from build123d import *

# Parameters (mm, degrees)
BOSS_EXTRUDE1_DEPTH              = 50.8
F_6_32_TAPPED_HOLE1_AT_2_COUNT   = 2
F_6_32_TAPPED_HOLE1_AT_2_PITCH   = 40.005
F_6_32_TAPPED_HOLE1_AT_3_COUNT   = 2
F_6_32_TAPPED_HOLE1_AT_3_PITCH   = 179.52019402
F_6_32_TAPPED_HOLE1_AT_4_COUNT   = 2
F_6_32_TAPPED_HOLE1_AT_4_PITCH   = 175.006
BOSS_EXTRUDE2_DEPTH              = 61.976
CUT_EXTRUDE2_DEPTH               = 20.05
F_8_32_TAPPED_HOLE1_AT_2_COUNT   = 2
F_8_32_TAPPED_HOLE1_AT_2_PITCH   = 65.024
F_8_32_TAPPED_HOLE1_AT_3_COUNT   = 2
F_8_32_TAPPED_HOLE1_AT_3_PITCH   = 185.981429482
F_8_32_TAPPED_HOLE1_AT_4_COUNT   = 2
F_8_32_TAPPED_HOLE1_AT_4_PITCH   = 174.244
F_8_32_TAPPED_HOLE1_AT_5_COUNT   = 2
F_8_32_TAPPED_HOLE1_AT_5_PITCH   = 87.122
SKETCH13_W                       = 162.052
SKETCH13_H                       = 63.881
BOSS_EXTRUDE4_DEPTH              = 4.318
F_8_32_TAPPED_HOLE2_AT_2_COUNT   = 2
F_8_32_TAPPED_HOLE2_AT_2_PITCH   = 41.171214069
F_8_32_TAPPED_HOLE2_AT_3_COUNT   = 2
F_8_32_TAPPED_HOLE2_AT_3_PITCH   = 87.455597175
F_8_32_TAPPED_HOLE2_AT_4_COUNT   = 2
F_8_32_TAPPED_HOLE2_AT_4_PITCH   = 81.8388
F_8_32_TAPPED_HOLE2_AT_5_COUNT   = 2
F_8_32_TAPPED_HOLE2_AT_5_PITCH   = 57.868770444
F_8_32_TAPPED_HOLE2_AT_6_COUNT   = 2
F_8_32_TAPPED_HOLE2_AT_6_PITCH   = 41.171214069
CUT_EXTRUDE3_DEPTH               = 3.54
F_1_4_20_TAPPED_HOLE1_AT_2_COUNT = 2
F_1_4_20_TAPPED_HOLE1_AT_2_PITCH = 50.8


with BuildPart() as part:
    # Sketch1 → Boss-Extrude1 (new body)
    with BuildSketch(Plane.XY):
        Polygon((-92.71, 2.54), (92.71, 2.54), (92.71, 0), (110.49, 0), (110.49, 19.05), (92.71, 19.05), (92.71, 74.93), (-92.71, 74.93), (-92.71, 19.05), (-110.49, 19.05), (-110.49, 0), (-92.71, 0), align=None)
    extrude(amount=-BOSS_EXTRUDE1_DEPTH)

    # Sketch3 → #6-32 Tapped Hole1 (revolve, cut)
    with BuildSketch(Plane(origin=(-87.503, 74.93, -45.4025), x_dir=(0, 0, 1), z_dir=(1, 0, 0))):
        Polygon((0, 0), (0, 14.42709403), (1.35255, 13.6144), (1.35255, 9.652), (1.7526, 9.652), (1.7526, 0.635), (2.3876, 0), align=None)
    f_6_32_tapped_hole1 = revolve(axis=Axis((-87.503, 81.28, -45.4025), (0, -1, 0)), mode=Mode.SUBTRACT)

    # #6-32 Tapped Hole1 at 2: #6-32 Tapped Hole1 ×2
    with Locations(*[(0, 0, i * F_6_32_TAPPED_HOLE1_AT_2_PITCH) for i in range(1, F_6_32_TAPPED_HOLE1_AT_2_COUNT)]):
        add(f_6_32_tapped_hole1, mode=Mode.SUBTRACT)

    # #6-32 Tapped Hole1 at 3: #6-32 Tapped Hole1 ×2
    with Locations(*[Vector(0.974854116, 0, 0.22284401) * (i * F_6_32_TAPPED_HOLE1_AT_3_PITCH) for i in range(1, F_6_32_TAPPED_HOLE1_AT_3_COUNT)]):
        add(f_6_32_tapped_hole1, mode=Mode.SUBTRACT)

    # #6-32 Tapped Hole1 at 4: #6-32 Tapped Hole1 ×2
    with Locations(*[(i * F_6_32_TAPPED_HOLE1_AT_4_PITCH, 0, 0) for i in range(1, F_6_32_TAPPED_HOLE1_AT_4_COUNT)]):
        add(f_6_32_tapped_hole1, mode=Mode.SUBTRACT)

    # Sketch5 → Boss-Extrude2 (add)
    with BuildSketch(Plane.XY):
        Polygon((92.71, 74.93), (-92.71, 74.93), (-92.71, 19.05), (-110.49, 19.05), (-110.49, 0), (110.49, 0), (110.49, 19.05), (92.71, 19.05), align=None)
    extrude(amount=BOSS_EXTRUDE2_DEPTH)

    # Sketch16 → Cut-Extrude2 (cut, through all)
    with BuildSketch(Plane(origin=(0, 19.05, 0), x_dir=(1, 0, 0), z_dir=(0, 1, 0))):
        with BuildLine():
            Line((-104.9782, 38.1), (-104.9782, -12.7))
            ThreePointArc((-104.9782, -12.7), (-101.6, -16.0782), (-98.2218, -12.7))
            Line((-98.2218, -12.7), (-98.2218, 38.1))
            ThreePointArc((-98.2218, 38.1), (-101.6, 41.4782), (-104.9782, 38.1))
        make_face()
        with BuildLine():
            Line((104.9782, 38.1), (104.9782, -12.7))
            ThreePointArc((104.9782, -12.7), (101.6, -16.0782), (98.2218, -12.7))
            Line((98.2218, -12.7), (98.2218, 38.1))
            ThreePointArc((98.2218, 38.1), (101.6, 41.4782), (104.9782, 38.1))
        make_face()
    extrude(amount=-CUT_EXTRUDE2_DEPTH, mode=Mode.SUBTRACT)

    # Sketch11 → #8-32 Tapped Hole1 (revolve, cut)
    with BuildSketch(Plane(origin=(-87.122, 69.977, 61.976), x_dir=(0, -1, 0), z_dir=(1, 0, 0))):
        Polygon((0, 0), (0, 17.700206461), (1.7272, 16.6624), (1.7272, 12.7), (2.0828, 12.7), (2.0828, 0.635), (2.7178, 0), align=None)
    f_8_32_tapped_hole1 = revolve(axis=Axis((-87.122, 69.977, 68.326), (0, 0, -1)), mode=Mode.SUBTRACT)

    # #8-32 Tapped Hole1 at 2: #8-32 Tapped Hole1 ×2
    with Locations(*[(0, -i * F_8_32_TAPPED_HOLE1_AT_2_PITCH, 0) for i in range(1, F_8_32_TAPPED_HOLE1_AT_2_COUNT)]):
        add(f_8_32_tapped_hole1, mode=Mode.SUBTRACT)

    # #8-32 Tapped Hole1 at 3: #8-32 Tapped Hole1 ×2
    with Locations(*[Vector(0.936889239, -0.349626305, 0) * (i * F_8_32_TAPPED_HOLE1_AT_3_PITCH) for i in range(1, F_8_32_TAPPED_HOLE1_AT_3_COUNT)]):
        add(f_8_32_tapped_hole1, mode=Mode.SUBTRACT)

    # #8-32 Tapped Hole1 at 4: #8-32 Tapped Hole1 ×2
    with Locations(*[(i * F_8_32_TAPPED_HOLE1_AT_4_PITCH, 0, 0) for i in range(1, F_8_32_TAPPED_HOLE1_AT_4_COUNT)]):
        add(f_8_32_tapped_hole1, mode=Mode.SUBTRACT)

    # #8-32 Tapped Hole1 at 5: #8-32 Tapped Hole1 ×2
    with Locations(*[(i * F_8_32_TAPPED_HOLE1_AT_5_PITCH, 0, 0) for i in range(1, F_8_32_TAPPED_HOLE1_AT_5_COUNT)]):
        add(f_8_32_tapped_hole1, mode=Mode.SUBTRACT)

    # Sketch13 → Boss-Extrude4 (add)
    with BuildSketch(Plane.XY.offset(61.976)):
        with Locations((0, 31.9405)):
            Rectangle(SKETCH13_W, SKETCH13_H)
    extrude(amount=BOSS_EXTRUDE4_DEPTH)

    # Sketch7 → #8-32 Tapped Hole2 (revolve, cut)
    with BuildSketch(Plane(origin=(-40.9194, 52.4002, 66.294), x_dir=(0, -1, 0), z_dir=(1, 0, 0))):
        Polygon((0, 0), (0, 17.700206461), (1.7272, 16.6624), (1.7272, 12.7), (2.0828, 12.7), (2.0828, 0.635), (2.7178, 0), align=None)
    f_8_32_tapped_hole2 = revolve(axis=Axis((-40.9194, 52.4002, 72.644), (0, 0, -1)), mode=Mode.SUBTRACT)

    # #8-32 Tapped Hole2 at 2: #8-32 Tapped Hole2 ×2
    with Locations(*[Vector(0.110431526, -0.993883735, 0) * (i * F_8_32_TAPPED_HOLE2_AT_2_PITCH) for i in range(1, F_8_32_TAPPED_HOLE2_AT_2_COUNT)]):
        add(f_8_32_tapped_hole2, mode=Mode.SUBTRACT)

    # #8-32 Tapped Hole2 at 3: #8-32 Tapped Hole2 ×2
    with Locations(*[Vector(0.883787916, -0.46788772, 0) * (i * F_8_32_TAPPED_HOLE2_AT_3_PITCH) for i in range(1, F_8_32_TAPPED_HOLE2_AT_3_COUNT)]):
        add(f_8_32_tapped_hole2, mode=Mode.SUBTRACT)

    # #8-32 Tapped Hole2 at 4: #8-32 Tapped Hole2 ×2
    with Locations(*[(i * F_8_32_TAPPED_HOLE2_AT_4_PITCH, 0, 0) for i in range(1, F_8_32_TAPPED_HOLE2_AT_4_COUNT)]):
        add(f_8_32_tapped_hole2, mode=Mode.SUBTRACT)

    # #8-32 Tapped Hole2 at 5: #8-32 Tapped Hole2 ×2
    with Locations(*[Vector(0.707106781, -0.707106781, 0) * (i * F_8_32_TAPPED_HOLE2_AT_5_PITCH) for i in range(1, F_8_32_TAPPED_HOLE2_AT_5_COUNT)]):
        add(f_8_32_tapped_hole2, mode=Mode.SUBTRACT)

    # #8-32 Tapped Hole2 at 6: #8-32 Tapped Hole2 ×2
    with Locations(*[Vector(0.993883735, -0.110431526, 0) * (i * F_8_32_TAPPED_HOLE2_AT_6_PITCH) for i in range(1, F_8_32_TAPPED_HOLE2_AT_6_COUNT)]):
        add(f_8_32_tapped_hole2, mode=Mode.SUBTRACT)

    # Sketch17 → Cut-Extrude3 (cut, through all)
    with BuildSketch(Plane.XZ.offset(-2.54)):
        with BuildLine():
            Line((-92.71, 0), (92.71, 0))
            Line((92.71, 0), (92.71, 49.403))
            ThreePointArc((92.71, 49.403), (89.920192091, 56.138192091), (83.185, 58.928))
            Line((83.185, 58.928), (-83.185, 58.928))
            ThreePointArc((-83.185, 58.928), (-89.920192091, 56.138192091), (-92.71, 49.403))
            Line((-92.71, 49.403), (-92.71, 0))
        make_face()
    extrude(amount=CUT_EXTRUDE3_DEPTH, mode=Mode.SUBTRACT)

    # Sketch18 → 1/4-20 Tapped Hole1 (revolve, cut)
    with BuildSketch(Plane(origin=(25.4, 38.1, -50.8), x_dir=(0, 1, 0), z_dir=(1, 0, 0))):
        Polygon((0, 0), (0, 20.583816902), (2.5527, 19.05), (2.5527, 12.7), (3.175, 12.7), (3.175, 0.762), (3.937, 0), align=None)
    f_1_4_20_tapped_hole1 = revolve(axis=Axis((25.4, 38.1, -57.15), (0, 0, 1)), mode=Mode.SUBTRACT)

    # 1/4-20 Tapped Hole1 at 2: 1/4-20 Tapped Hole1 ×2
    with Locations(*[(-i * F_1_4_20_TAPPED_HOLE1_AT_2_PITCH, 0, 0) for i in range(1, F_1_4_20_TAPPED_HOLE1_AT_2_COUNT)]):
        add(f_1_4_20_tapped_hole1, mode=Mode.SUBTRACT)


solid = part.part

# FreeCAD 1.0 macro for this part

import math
import FreeCAD as App
import Part
import Sketcher

V = App.Vector
Q = App.Units.Quantity

doc = App.newDocument("Part")
body = doc.addObject("PartDesign::Body", "Body")

# Sketch on XY plane
sketch1 = body.newObject("Sketcher::SketchObject", "Sketch")
sketch1.AttachmentSupport = (doc.getObject("XY_Plane"), [""])
sketch1.MapMode = "FlatFace"
sketch1.addGeometry(Part.LineSegment(V(-92.71, 2.54, 0), V(92.71, 2.54, 0)), False)
sketch1.addGeometry(Part.LineSegment(V(92.71, 2.54, 0), V(92.71, 0, 0)), False)
sketch1.addGeometry(Part.LineSegment(V(92.71, 0, 0), V(110.49, 0, 0)), False)
sketch1.addGeometry(Part.LineSegment(V(110.49, 0, 0), V(110.49, 19.05, 0)), False)
sketch1.addGeometry(Part.LineSegment(V(110.49, 19.05, 0), V(92.71, 19.05, 0)), False)
sketch1.addGeometry(Part.LineSegment(V(92.71, 19.05, 0), V(92.71, 74.93, 0)), False)
sketch1.addGeometry(Part.LineSegment(V(92.71, 74.93, 0), V(-92.71, 74.93, 0)), False)
sketch1.addGeometry(Part.LineSegment(V(-92.71, 74.93, 0), V(-92.71, 19.05, 0)), False)
sketch1.addGeometry(Part.LineSegment(V(-92.71, 19.05, 0), V(-110.49, 19.05, 0)), False)
sketch1.addGeometry(Part.LineSegment(V(-110.49, 19.05, 0), V(-110.49, 0, 0)), False)
sketch1.addGeometry(Part.LineSegment(V(-110.49, 0, 0), V(-92.71, 0, 0)), False)
sketch1.addGeometry(Part.LineSegment(V(-92.71, 0, 0), V(-92.71, 2.54, 0)), False)
sketch1.addConstraint(Sketcher.Constraint("Coincident", 0, 2, 1, 1))
sketch1.addConstraint(Sketcher.Constraint("Coincident", 1, 2, 2, 1))
sketch1.addConstraint(Sketcher.Constraint("Coincident", 2, 2, 3, 1))
sketch1.addConstraint(Sketcher.Constraint("Coincident", 3, 2, 4, 1))
sketch1.addConstraint(Sketcher.Constraint("Coincident", 4, 2, 5, 1))
sketch1.addConstraint(Sketcher.Constraint("Coincident", 5, 2, 6, 1))
sketch1.addConstraint(Sketcher.Constraint("Coincident", 6, 2, 7, 1))
sketch1.addConstraint(Sketcher.Constraint("Coincident", 7, 2, 8, 1))
sketch1.addConstraint(Sketcher.Constraint("Coincident", 8, 2, 9, 1))
sketch1.addConstraint(Sketcher.Constraint("Coincident", 9, 2, 10, 1))
sketch1.addConstraint(Sketcher.Constraint("Coincident", 10, 2, 11, 1))
sketch1.addConstraint(Sketcher.Constraint("Coincident", 11, 2, 0, 1))
sketch1.addConstraint(Sketcher.Constraint("Horizontal", 0))
sketch1.addConstraint(Sketcher.Constraint("Vertical", 1))
sketch1.addConstraint(Sketcher.Constraint("Horizontal", 2))
sketch1.addConstraint(Sketcher.Constraint("Vertical", 3))
sketch1.addConstraint(Sketcher.Constraint("Horizontal", 4))
sketch1.addConstraint(Sketcher.Constraint("Vertical", 5))
sketch1.addConstraint(Sketcher.Constraint("Horizontal", 6))
sketch1.addConstraint(Sketcher.Constraint("Vertical", 7))
sketch1.addConstraint(Sketcher.Constraint("Horizontal", 8))
sketch1.addConstraint(Sketcher.Constraint("Vertical", 9))
sketch1.addConstraint(Sketcher.Constraint("Horizontal", 10))
sketch1.addConstraint(Sketcher.Constraint("Vertical", 11))
sketch1.addConstraint(Sketcher.Constraint("Symmetric", 2, 2, 9, 2, -1, 1))
sketch1.addConstraint(Sketcher.Constraint("Symmetric", 4, 2, 7, 2, -2))
sketch1.addConstraint(Sketcher.Constraint("Symmetric", 1, 2, 10, 2, -2))
sketch1.addConstraint(Sketcher.Constraint("Vertical", 1, 2, 4, 2))
sketch1.addConstraint(Sketcher.Constraint("DistanceX", 0, 1, 0, 2, Q("7.3 in")))
sketch1.addConstraint(Sketcher.Constraint("DistanceX", 2, 1, 2, 2, Q("0.7 in")))
sketch1.addConstraint(Sketcher.Constraint("DistanceY", 1, 2, 1, 1, Q("0.1 in")))
sketch1.addConstraint(Sketcher.Constraint("DistanceY", 5, 1, 5, 2, Q("2.2 in")))
sketch1.addConstraint(Sketcher.Constraint("DistanceY", 3, 1, 3, 2, Q("0.75 in")))
pad1 = body.newObject("PartDesign::Pad", "Pad")
pad1.Profile = sketch1
pad1.Length = Q("2 in")
pad1.Reversed = True

# Sketch on YZ plane
sketch2 = body.newObject("Sketcher::SketchObject", "Sketch001")
sketch2.AttachmentSupport = (doc.getObject("YZ_Plane"), [""])
sketch2.MapMode = "FlatFace"
sketch2.AttachmentOffset = App.Placement(V(0, 0, -3.445 * 25.4), App.Rotation())
sketch2.addGeometry(Part.LineSegment(V(60.502906, -45.4025, 0), V(74.93, -45.4025, 0)), False)
sketch2.addGeometry(Part.LineSegment(V(74.93, -45.4025, 0), V(74.93, -43.0149, 0)), False)
sketch2.addGeometry(Part.LineSegment(V(74.93, -43.0149, 0), V(74.295, -43.6499, 0)), False)
sketch2.addGeometry(Part.LineSegment(V(74.295, -43.6499, 0), V(65.278, -43.6499, 0)), False)
sketch2.addGeometry(Part.LineSegment(V(65.278, -43.6499, 0), V(65.278, -44.04995, 0)), False)
sketch2.addGeometry(Part.LineSegment(V(65.278, -44.04995, 0), V(61.3156, -44.04995, 0)), False)
sketch2.addGeometry(Part.LineSegment(V(61.3156, -44.04995, 0), V(60.502906, -45.4025, 0)), False)
sketch2.addGeometry(Part.LineSegment(V(74.93, -45.4025, 0), V(60.502906, -45.4025, 0)), True)  # axis
sketch2.addConstraint(Sketcher.Constraint("Coincident", 0, 2, 1, 1))
sketch2.addConstraint(Sketcher.Constraint("Coincident", 1, 2, 2, 1))
sketch2.addConstraint(Sketcher.Constraint("Coincident", 2, 2, 3, 1))
sketch2.addConstraint(Sketcher.Constraint("Coincident", 3, 2, 4, 1))
sketch2.addConstraint(Sketcher.Constraint("Coincident", 4, 2, 5, 1))
sketch2.addConstraint(Sketcher.Constraint("Coincident", 5, 2, 6, 1))
sketch2.addConstraint(Sketcher.Constraint("Coincident", 6, 2, 0, 1))
sketch2.addConstraint(Sketcher.Constraint("Horizontal", 0))
sketch2.addConstraint(Sketcher.Constraint("Vertical", 1))
sketch2.addConstraint(Sketcher.Constraint("Horizontal", 3))
sketch2.addConstraint(Sketcher.Constraint("Vertical", 4))
sketch2.addConstraint(Sketcher.Constraint("Horizontal", 5))
sketch2.addConstraint(Sketcher.Constraint("Horizontal", 7))
sketch2.addConstraint(Sketcher.Constraint("Coincident", 7, 1, 0, 2))
sketch2.addConstraint(Sketcher.Constraint("Equal", 0, 7))
sketch2.addConstraint(Sketcher.Constraint("Angle", 2, Q("-135 deg")))
sketch2.addConstraint(Sketcher.Constraint("Angle", 6, Q("-121 deg")))
sketch2.addConstraint(Sketcher.Constraint("DistanceX", 3, 2, 3, 1, Q("0.355 in")))
sketch2.addConstraint(Sketcher.Constraint("DistanceX", 5, 2, 5, 1, Q("0.156 in")))
sketch2.addConstraint(Sketcher.Constraint("DistanceY", 1, 1, 1, 2, Q("0.094 in")))
sketch2.addConstraint(Sketcher.Constraint("DistanceX", -1, 1, 0, 2, Q("2.95 in")))
sketch2.addConstraint(Sketcher.Constraint("DistanceX", -1, 1, 3, 2, Q("2.57 in")))
sketch2.addConstraint(Sketcher.Constraint("DistanceY", 0, 2, -1, 1, Q("1.7875 in")))
sketch2.addConstraint(Sketcher.Constraint("DistanceY", 4, 2, 4, 1, Q("0.40005 mm")))
groove = body.newObject("PartDesign::Groove", "Groove")
groove.Profile = sketch2
groove.ReferenceAxis = (sketch2, ["Axis0"])
groove.Angle = 360
doc.recompute()

linearpattern = body.newObject("PartDesign::LinearPattern", "LinearPattern")
linearpattern.Originals = [groove]
linearpattern.Direction = (doc.getObject("Z_Axis"), [""])
linearpattern.Mode = "offset"
linearpattern.Offset = Q("1.575 in")
linearpattern.Occurrences = 2
body.Tip = linearpattern
doc.recompute()

datumline = body.newObject("PartDesign::Line", "DatumLine")
datumline.Placement = App.Placement(V(0, 0, 0), App.Rotation(V(0, 0, 1), V(0.974854116, 0, 0.22284401)))
linearpattern2 = body.newObject("PartDesign::LinearPattern", "LinearPattern001")
linearpattern2.Originals = [groove]
linearpattern2.Direction = (datumline, [""])
linearpattern2.Mode = "offset"
linearpattern2.Offset = 179.520194
linearpattern2.Occurrences = 2
body.Tip = linearpattern2
doc.recompute()

linearpattern3 = body.newObject("PartDesign::LinearPattern", "LinearPattern002")
linearpattern3.Originals = [groove]
linearpattern3.Direction = (doc.getObject("X_Axis"), [""])
linearpattern3.Mode = "offset"
linearpattern3.Offset = Q("6.89 in")
linearpattern3.Occurrences = 2
body.Tip = linearpattern3

# Sketch on XY plane
sketch3 = body.newObject("Sketcher::SketchObject", "Sketch002")
sketch3.AttachmentSupport = (doc.getObject("XY_Plane"), [""])
sketch3.MapMode = "FlatFace"
sketch3.addGeometry(Part.LineSegment(V(92.71, 74.93, 0), V(-92.71, 74.93, 0)), False)
sketch3.addGeometry(Part.LineSegment(V(-92.71, 74.93, 0), V(-92.71, 19.05, 0)), False)
sketch3.addGeometry(Part.LineSegment(V(-92.71, 19.05, 0), V(-110.49, 19.05, 0)), False)
sketch3.addGeometry(Part.LineSegment(V(-110.49, 19.05, 0), V(-110.49, 0, 0)), False)
sketch3.addGeometry(Part.LineSegment(V(-110.49, 0, 0), V(110.49, 0, 0)), False)
sketch3.addGeometry(Part.LineSegment(V(110.49, 0, 0), V(110.49, 19.05, 0)), False)
sketch3.addGeometry(Part.LineSegment(V(110.49, 19.05, 0), V(92.71, 19.05, 0)), False)
sketch3.addGeometry(Part.LineSegment(V(92.71, 19.05, 0), V(92.71, 74.93, 0)), False)
sketch3.addConstraint(Sketcher.Constraint("Coincident", 0, 2, 1, 1))
sketch3.addConstraint(Sketcher.Constraint("Coincident", 1, 2, 2, 1))
sketch3.addConstraint(Sketcher.Constraint("Coincident", 2, 2, 3, 1))
sketch3.addConstraint(Sketcher.Constraint("Coincident", 3, 2, 4, 1))
sketch3.addConstraint(Sketcher.Constraint("Coincident", 4, 2, 5, 1))
sketch3.addConstraint(Sketcher.Constraint("Coincident", 5, 2, 6, 1))
sketch3.addConstraint(Sketcher.Constraint("Coincident", 6, 2, 7, 1))
sketch3.addConstraint(Sketcher.Constraint("Coincident", 7, 2, 0, 1))
sketch3.addConstraint(Sketcher.Constraint("Horizontal", 0))
sketch3.addConstraint(Sketcher.Constraint("Vertical", 1))
sketch3.addConstraint(Sketcher.Constraint("Horizontal", 2))
sketch3.addConstraint(Sketcher.Constraint("Vertical", 3))
sketch3.addConstraint(Sketcher.Constraint("Horizontal", 4))
sketch3.addConstraint(Sketcher.Constraint("Vertical", 5))
sketch3.addConstraint(Sketcher.Constraint("Horizontal", 6))
sketch3.addConstraint(Sketcher.Constraint("Vertical", 7))
sketch3.addConstraint(Sketcher.Constraint("Symmetric", 3, 2, 4, 2, -1, 1))
sketch3.addConstraint(Sketcher.Constraint("Symmetric", 1, 2, 6, 2, -2))
sketch3.addConstraint(Sketcher.Constraint("DistanceX", 0, 2, 0, 1, Q("7.3 in")))
sketch3.addConstraint(Sketcher.Constraint("DistanceX", 2, 2, 2, 1, Q("0.7 in")))
sketch3.addConstraint(Sketcher.Constraint("DistanceY", 1, 2, 1, 1, Q("2.2 in")))
sketch3.addConstraint(Sketcher.Constraint("DistanceY", 3, 2, 3, 1, Q("0.75 in")))
pad2 = body.newObject("PartDesign::Pad", "Pad001")
pad2.Profile = sketch3
pad2.Length = Q("2.44 in")

# Sketch on XZ plane
sketch4 = body.newObject("Sketcher::SketchObject", "Sketch003")
sketch4.AttachmentSupport = (doc.getObject("XZ_Plane"), [""])
sketch4.MapMode = "FlatFace"
sketch4.AttachmentOffset = App.Placement(V(0, 0, -0.75 * 25.4), App.Rotation())
sketch4.addGeometry(Part.LineSegment(V(-104.9782, -38.1, 0), V(-104.9782, 12.7, 0)), False)
sketch4.addGeometry(Part.ArcOfCircle(Part.Circle(V(-101.6, 12.7, 0), V(0, 0, 1), 3.3782), math.radians(0), math.radians(180)), False)
sketch4.addGeometry(Part.LineSegment(V(-98.2218, 12.7, 0), V(-98.2218, -38.1, 0)), False)
sketch4.addGeometry(Part.ArcOfCircle(Part.Circle(V(-101.6, -38.1, 0), V(0, 0, 1), 3.3782), math.radians(180), math.radians(360)), False)
sketch4.addGeometry(Part.LineSegment(V(104.9782, 12.7, 0), V(104.9782, -38.1, 0)), False)
sketch4.addGeometry(Part.ArcOfCircle(Part.Circle(V(101.6, -38.1, 0), V(0, 0, 1), 3.3782), math.radians(180), math.radians(360)), False)
sketch4.addGeometry(Part.LineSegment(V(98.2218, -38.1, 0), V(98.2218, 12.7, 0)), False)
sketch4.addGeometry(Part.ArcOfCircle(Part.Circle(V(101.6, 12.7, 0), V(0, 0, 1), 3.3782), math.radians(0), math.radians(180)), False)
sketch4.addConstraint(Sketcher.Constraint("Tangent", 0, 2, 1, 2))
sketch4.addConstraint(Sketcher.Constraint("Tangent", 1, 1, 2, 1))
sketch4.addConstraint(Sketcher.Constraint("Tangent", 2, 2, 3, 2))
sketch4.addConstraint(Sketcher.Constraint("Tangent", 3, 1, 0, 1))
sketch4.addConstraint(Sketcher.Constraint("Tangent", 4, 2, 5, 2))
sketch4.addConstraint(Sketcher.Constraint("Tangent", 5, 1, 6, 1))
sketch4.addConstraint(Sketcher.Constraint("Tangent", 6, 2, 7, 2))
sketch4.addConstraint(Sketcher.Constraint("Tangent", 7, 1, 4, 1))
sketch4.addConstraint(Sketcher.Constraint("Vertical", 0))
sketch4.addConstraint(Sketcher.Constraint("Vertical", 2))
sketch4.addConstraint(Sketcher.Constraint("Vertical", 4))
sketch4.addConstraint(Sketcher.Constraint("Vertical", 6))
sketch4.addConstraint(Sketcher.Constraint("Equal", 3, 5))
sketch4.addConstraint(Sketcher.Constraint("Symmetric", 3, 3, 5, 3, -2))
sketch4.addConstraint(Sketcher.Constraint("Horizontal", 1, 3, 7, 3))
sketch4.addConstraint(Sketcher.Constraint("DistanceY", 0, 1, 0, 2, Q("2 in")))
sketch4.addConstraint(Sketcher.Constraint("DistanceX", 1, 3, -1, 1, Q("4 in")))
sketch4.addConstraint(Sketcher.Constraint("Radius", 1, Q("0.133 in")))
sketch4.addConstraint(Sketcher.Constraint("DistanceY", -1, 1, 1, 3, Q("0.5 in")))
pocket1 = body.newObject("PartDesign::Pocket", "Pocket")
pocket1.Profile = sketch4
pocket1.Type = "ThroughAll"
pocket1.Reversed = True

# Sketch on YZ plane
sketch5 = body.newObject("Sketcher::SketchObject", "Sketch004")
sketch5.AttachmentSupport = (doc.getObject("YZ_Plane"), [""])
sketch5.MapMode = "FlatFace"
sketch5.AttachmentOffset = App.Placement(V(0, 0, -3.43 * 25.4), App.Rotation())
sketch5.addGeometry(Part.LineSegment(V(69.977, 44.275794, 0), V(69.977, 61.976, 0)), False)
sketch5.addGeometry(Part.LineSegment(V(69.977, 61.976, 0), V(67.2592, 61.976, 0)), False)
sketch5.addGeometry(Part.LineSegment(V(67.2592, 61.976, 0), V(67.8942, 61.341, 0)), False)
sketch5.addGeometry(Part.LineSegment(V(67.8942, 61.341, 0), V(67.8942, 49.276, 0)), False)
sketch5.addGeometry(Part.LineSegment(V(67.8942, 49.276, 0), V(68.2498, 49.276, 0)), False)
sketch5.addGeometry(Part.LineSegment(V(68.2498, 49.276, 0), V(68.2498, 45.3136, 0)), False)
sketch5.addGeometry(Part.LineSegment(V(68.2498, 45.3136, 0), V(69.977, 44.275794, 0)), False)
sketch5.addGeometry(Part.LineSegment(V(69.977, 61.976, 0), V(69.977, 44.275794, 0)), True)  # axis
sketch5.addConstraint(Sketcher.Constraint("Coincident", 0, 2, 1, 1))
sketch5.addConstraint(Sketcher.Constraint("Coincident", 1, 2, 2, 1))
sketch5.addConstraint(Sketcher.Constraint("Coincident", 2, 2, 3, 1))
sketch5.addConstraint(Sketcher.Constraint("Coincident", 3, 2, 4, 1))
sketch5.addConstraint(Sketcher.Constraint("Coincident", 4, 2, 5, 1))
sketch5.addConstraint(Sketcher.Constraint("Coincident", 5, 2, 6, 1))
sketch5.addConstraint(Sketcher.Constraint("Coincident", 6, 2, 0, 1))
sketch5.addConstraint(Sketcher.Constraint("Vertical", 0))
sketch5.addConstraint(Sketcher.Constraint("Horizontal", 1))
sketch5.addConstraint(Sketcher.Constraint("Vertical", 3))
sketch5.addConstraint(Sketcher.Constraint("Horizontal", 4))
sketch5.addConstraint(Sketcher.Constraint("Vertical", 5))
sketch5.addConstraint(Sketcher.Constraint("Vertical", 7))
sketch5.addConstraint(Sketcher.Constraint("Coincident", 7, 1, 0, 2))
sketch5.addConstraint(Sketcher.Constraint("Equal", 0, 7))
sketch5.addConstraint(Sketcher.Constraint("Angle", 2, Q("-45 deg")))
sketch5.addConstraint(Sketcher.Constraint("Angle", 6, Q("-31 deg")))
sketch5.addConstraint(Sketcher.Constraint("DistanceY", 3, 2, 1, 2, Q("0.5 in")))
sketch5.addConstraint(Sketcher.Constraint("DistanceX", 1, 2, 1, 1, Q("0.107 in")))
sketch5.addConstraint(Sketcher.Constraint("DistanceX", 4, 1, 4, 2, Q("0.014 in")))
sketch5.addConstraint(Sketcher.Constraint("DistanceY", 3, 2, 3, 1, Q("0.475 in")))
sketch5.addConstraint(Sketcher.Constraint("DistanceY", 5, 2, 5, 1, Q("0.156 in")))
sketch5.addConstraint(Sketcher.Constraint("DistanceY", -1, 1, 0, 2, Q("2.44 in")))
sketch5.addConstraint(Sketcher.Constraint("DistanceX", -1, 1, 0, 2, Q("2.755 in")))
groove2 = body.newObject("PartDesign::Groove", "Groove001")
groove2.Profile = sketch5
groove2.ReferenceAxis = (sketch5, ["Axis0"])
groove2.Angle = 360
doc.recompute()

linearpattern4 = body.newObject("PartDesign::LinearPattern", "LinearPattern003")
linearpattern4.Originals = [groove2]
linearpattern4.Direction = (doc.getObject("Y_Axis"), [""])
linearpattern4.Mode = "offset"
linearpattern4.Offset = Q("2.56 in")
linearpattern4.Occurrences = 2
linearpattern4.Reversed = True
body.Tip = linearpattern4
doc.recompute()

datumline2 = body.newObject("PartDesign::Line", "DatumLine001")
datumline2.Placement = App.Placement(V(0, 0, 0), App.Rotation(V(0, 0, 1), V(0.936889239, -0.349626305, 0)))
linearpattern5 = body.newObject("PartDesign::LinearPattern", "LinearPattern004")
linearpattern5.Originals = [groove2]
linearpattern5.Direction = (datumline2, [""])
linearpattern5.Mode = "offset"
linearpattern5.Offset = 185.981429
linearpattern5.Occurrences = 2
body.Tip = linearpattern5
doc.recompute()

linearpattern6 = body.newObject("PartDesign::LinearPattern", "LinearPattern005")
linearpattern6.Originals = [groove2]
linearpattern6.Direction = (doc.getObject("X_Axis"), [""])
linearpattern6.Mode = "offset"
linearpattern6.Offset = Q("6.86 in")
linearpattern6.Occurrences = 2
body.Tip = linearpattern6
doc.recompute()

linearpattern7 = body.newObject("PartDesign::LinearPattern", "LinearPattern006")
linearpattern7.Originals = [groove2]
linearpattern7.Direction = (doc.getObject("X_Axis"), [""])
linearpattern7.Mode = "offset"
linearpattern7.Offset = Q("3.43 in")
linearpattern7.Occurrences = 2
body.Tip = linearpattern7

# Sketch on XY plane
sketch6 = body.newObject("Sketcher::SketchObject", "Sketch005")
sketch6.AttachmentSupport = (doc.getObject("XY_Plane"), [""])
sketch6.MapMode = "FlatFace"
sketch6.AttachmentOffset = App.Placement(V(0, 0, 2.44 * 25.4), App.Rotation())
sketch6.addGeometry(Part.LineSegment(V(-81.026, 63.881, 0), V(-81.026, 0, 0)), False)
sketch6.addGeometry(Part.LineSegment(V(-81.026, 0, 0), V(81.026, 0, 0)), False)
sketch6.addGeometry(Part.LineSegment(V(81.026, 0, 0), V(81.026, 63.881, 0)), False)
sketch6.addGeometry(Part.LineSegment(V(81.026, 63.881, 0), V(-81.026, 63.881, 0)), False)
sketch6.addConstraint(Sketcher.Constraint("Coincident", 0, 2, 1, 1))
sketch6.addConstraint(Sketcher.Constraint("Coincident", 1, 2, 2, 1))
sketch6.addConstraint(Sketcher.Constraint("Coincident", 2, 2, 3, 1))
sketch6.addConstraint(Sketcher.Constraint("Coincident", 3, 2, 0, 1))
sketch6.addConstraint(Sketcher.Constraint("Vertical", 0))
sketch6.addConstraint(Sketcher.Constraint("Horizontal", 1))
sketch6.addConstraint(Sketcher.Constraint("Vertical", 2))
sketch6.addConstraint(Sketcher.Constraint("Horizontal", 3))
sketch6.addConstraint(Sketcher.Constraint("Symmetric", 0, 2, 1, 2, -1, 1))
sketch6.addConstraint(Sketcher.Constraint("DistanceX", 1, 1, 1, 2, Q("6.38 in")))
sketch6.addConstraint(Sketcher.Constraint("DistanceY", 0, 2, 0, 1, Q("2.515 in")))
pad3 = body.newObject("PartDesign::Pad", "Pad002")
pad3.Profile = sketch6
pad3.Length = Q("0.17 in")

# Sketch on YZ plane
sketch7 = body.newObject("Sketcher::SketchObject", "Sketch006")
sketch7.AttachmentSupport = (doc.getObject("YZ_Plane"), [""])
sketch7.MapMode = "FlatFace"
sketch7.AttachmentOffset = App.Placement(V(0, 0, -1.611 * 25.4), App.Rotation())
sketch7.addGeometry(Part.LineSegment(V(52.4002, 48.593794, 0), V(52.4002, 66.294, 0)), False)
sketch7.addGeometry(Part.LineSegment(V(52.4002, 66.294, 0), V(49.6824, 66.294, 0)), False)
sketch7.addGeometry(Part.LineSegment(V(49.6824, 66.294, 0), V(50.3174, 65.659, 0)), False)
sketch7.addGeometry(Part.LineSegment(V(50.3174, 65.659, 0), V(50.3174, 53.594, 0)), False)
sketch7.addGeometry(Part.LineSegment(V(50.3174, 53.594, 0), V(50.673, 53.594, 0)), False)
sketch7.addGeometry(Part.LineSegment(V(50.673, 53.594, 0), V(50.673, 49.6316, 0)), False)
sketch7.addGeometry(Part.LineSegment(V(50.673, 49.6316, 0), V(52.4002, 48.593794, 0)), False)
sketch7.addGeometry(Part.LineSegment(V(52.4002, 66.294, 0), V(52.4002, 48.593794, 0)), True)  # axis
sketch7.addConstraint(Sketcher.Constraint("Coincident", 0, 2, 1, 1))
sketch7.addConstraint(Sketcher.Constraint("Coincident", 1, 2, 2, 1))
sketch7.addConstraint(Sketcher.Constraint("Coincident", 2, 2, 3, 1))
sketch7.addConstraint(Sketcher.Constraint("Coincident", 3, 2, 4, 1))
sketch7.addConstraint(Sketcher.Constraint("Coincident", 4, 2, 5, 1))
sketch7.addConstraint(Sketcher.Constraint("Coincident", 5, 2, 6, 1))
sketch7.addConstraint(Sketcher.Constraint("Coincident", 6, 2, 0, 1))
sketch7.addConstraint(Sketcher.Constraint("Vertical", 0))
sketch7.addConstraint(Sketcher.Constraint("Horizontal", 1))
sketch7.addConstraint(Sketcher.Constraint("Vertical", 3))
sketch7.addConstraint(Sketcher.Constraint("Horizontal", 4))
sketch7.addConstraint(Sketcher.Constraint("Vertical", 5))
sketch7.addConstraint(Sketcher.Constraint("Vertical", 7))
sketch7.addConstraint(Sketcher.Constraint("Coincident", 7, 1, 0, 2))
sketch7.addConstraint(Sketcher.Constraint("Equal", 0, 7))
sketch7.addConstraint(Sketcher.Constraint("Angle", 2, Q("-45 deg")))
sketch7.addConstraint(Sketcher.Constraint("Angle", 6, Q("-31 deg")))
sketch7.addConstraint(Sketcher.Constraint("DistanceY", 3, 2, 1, 2, Q("0.5 in")))
sketch7.addConstraint(Sketcher.Constraint("DistanceX", 1, 2, 1, 1, Q("0.107 in")))
sketch7.addConstraint(Sketcher.Constraint("DistanceX", 4, 1, 4, 2, Q("0.014 in")))
sketch7.addConstraint(Sketcher.Constraint("DistanceY", 3, 2, 3, 1, Q("0.475 in")))
sketch7.addConstraint(Sketcher.Constraint("DistanceY", 5, 2, 5, 1, Q("0.156 in")))
sketch7.addConstraint(Sketcher.Constraint("DistanceY", -1, 1, 0, 2, Q("2.61 in")))
sketch7.addConstraint(Sketcher.Constraint("DistanceX", -1, 1, 0, 2, Q("2.063 in")))
groove3 = body.newObject("PartDesign::Groove", "Groove002")
groove3.Profile = sketch7
groove3.ReferenceAxis = (sketch7, ["Axis0"])
groove3.Angle = 360
doc.recompute()

datumline3 = body.newObject("PartDesign::Line", "DatumLine002")
datumline3.Placement = App.Placement(V(0, 0, 0), App.Rotation(V(0, 0, 1), V(0.110431526, -0.993883735, 0)))
linearpattern8 = body.newObject("PartDesign::LinearPattern", "LinearPattern007")
linearpattern8.Originals = [groove3]
linearpattern8.Direction = (datumline3, [""])
linearpattern8.Mode = "offset"
linearpattern8.Offset = 41.171214
linearpattern8.Occurrences = 2
body.Tip = linearpattern8
doc.recompute()

datumline4 = body.newObject("PartDesign::Line", "DatumLine003")
datumline4.Placement = App.Placement(V(0, 0, 0), App.Rotation(V(0, 0, 1), V(0.883787916, -0.46788772, 0)))
linearpattern9 = body.newObject("PartDesign::LinearPattern", "LinearPattern008")
linearpattern9.Originals = [groove3]
linearpattern9.Direction = (datumline4, [""])
linearpattern9.Mode = "offset"
linearpattern9.Offset = 87.455597
linearpattern9.Occurrences = 2
body.Tip = linearpattern9
doc.recompute()

linearpattern10 = body.newObject("PartDesign::LinearPattern", "LinearPattern009")
linearpattern10.Originals = [groove3]
linearpattern10.Direction = (doc.getObject("X_Axis"), [""])
linearpattern10.Mode = "offset"
linearpattern10.Offset = Q("3.222 in")
linearpattern10.Occurrences = 2
body.Tip = linearpattern10
doc.recompute()

datumline5 = body.newObject("PartDesign::Line", "DatumLine004")
datumline5.Placement = App.Placement(V(0, 0, 0), App.Rotation(V(0, 0, 1), V(0.707106781, -0.707106781, 0)))
linearpattern11 = body.newObject("PartDesign::LinearPattern", "LinearPattern010")
linearpattern11.Originals = [groove3]
linearpattern11.Direction = (datumline5, [""])
linearpattern11.Mode = "offset"
linearpattern11.Offset = 57.86877
linearpattern11.Occurrences = 2
body.Tip = linearpattern11
doc.recompute()

datumline6 = body.newObject("PartDesign::Line", "DatumLine005")
datumline6.Placement = App.Placement(V(0, 0, 0), App.Rotation(V(0, 0, 1), V(0.993883735, -0.110431526, 0)))
linearpattern12 = body.newObject("PartDesign::LinearPattern", "LinearPattern011")
linearpattern12.Originals = [groove3]
linearpattern12.Direction = (datumline6, [""])
linearpattern12.Mode = "offset"
linearpattern12.Offset = 41.171214
linearpattern12.Occurrences = 2
body.Tip = linearpattern12

# Sketch on XZ plane
sketch8 = body.newObject("Sketcher::SketchObject", "Sketch007")
sketch8.AttachmentSupport = (doc.getObject("XZ_Plane"), [""])
sketch8.MapMode = "FlatFace"
sketch8.AttachmentOffset = App.Placement(V(0, 0, -0.1 * 25.4), App.Rotation())
sketch8.addGeometry(Part.LineSegment(V(-92.71, 0, 0), V(92.71, 0, 0)), False)
sketch8.addGeometry(Part.LineSegment(V(92.71, 0, 0), V(92.71, 49.403, 0)), False)
sketch8.addGeometry(Part.ArcOfCircle(Part.Circle(V(83.185, 49.403, 0), V(0, 0, 1), 9.525), math.radians(0), math.radians(90)), False)
sketch8.addGeometry(Part.LineSegment(V(83.185, 58.928, 0), V(-83.185, 58.928, 0)), False)
sketch8.addGeometry(Part.ArcOfCircle(Part.Circle(V(-83.185, 49.403, 0), V(0, 0, 1), 9.525), math.radians(90), math.radians(180)), False)
sketch8.addGeometry(Part.LineSegment(V(-92.71, 49.403, 0), V(-92.71, 0, 0)), False)
sketch8.addConstraint(Sketcher.Constraint("Coincident", 0, 2, 1, 1))
sketch8.addConstraint(Sketcher.Constraint("Tangent", 1, 2, 2, 1))
sketch8.addConstraint(Sketcher.Constraint("Tangent", 2, 2, 3, 1))
sketch8.addConstraint(Sketcher.Constraint("Tangent", 3, 2, 4, 1))
sketch8.addConstraint(Sketcher.Constraint("Tangent", 4, 2, 5, 1))
sketch8.addConstraint(Sketcher.Constraint("Coincident", 5, 2, 0, 1))
sketch8.addConstraint(Sketcher.Constraint("Horizontal", 0))
sketch8.addConstraint(Sketcher.Constraint("Vertical", 1))
sketch8.addConstraint(Sketcher.Constraint("Horizontal", 3))
sketch8.addConstraint(Sketcher.Constraint("Vertical", 5))
sketch8.addConstraint(Sketcher.Constraint("Equal", 2, 4))
sketch8.addConstraint(Sketcher.Constraint("Symmetric", 0, 2, 5, 2, -1, 1))
sketch8.addConstraint(Sketcher.Constraint("DistanceX", 0, 1, 0, 2, Q("7.3 in")))
sketch8.addConstraint(Sketcher.Constraint("Radius", 2, Q("0.375 in")))
sketch8.addConstraint(Sketcher.Constraint("DistanceY", 1, 1, 1, 2, Q("1.945 in")))
pocket2 = body.newObject("PartDesign::Pocket", "Pocket001")
pocket2.Profile = sketch8
pocket2.Type = "ThroughAll"
pocket2.Reversed = True

# Sketch on YZ plane
sketch9 = body.newObject("Sketcher::SketchObject", "Sketch008")
sketch9.AttachmentSupport = (doc.getObject("YZ_Plane"), [""])
sketch9.MapMode = "FlatFace"
sketch9.AttachmentOffset = App.Placement(V(0, 0, 1 * 25.4), App.Rotation())
sketch9.addGeometry(Part.LineSegment(V(38.1, -30.216183, 0), V(38.1, -50.8, 0)), False)
sketch9.addGeometry(Part.LineSegment(V(38.1, -50.8, 0), V(42.037, -50.8, 0)), False)
sketch9.addGeometry(Part.LineSegment(V(42.037, -50.8, 0), V(41.275, -50.038, 0)), False)
sketch9.addGeometry(Part.LineSegment(V(41.275, -50.038, 0), V(41.275, -38.1, 0)), False)
sketch9.addGeometry(Part.LineSegment(V(41.275, -38.1, 0), V(40.6527, -38.1, 0)), False)
sketch9.addGeometry(Part.LineSegment(V(40.6527, -38.1, 0), V(40.6527, -31.75, 0)), False)
sketch9.addGeometry(Part.LineSegment(V(40.6527, -31.75, 0), V(38.1, -30.216183, 0)), False)
sketch9.addGeometry(Part.LineSegment(V(38.1, -50.8, 0), V(38.1, -30.216183, 0)), True)  # axis
sketch9.addConstraint(Sketcher.Constraint("Coincident", 0, 2, 1, 1))
sketch9.addConstraint(Sketcher.Constraint("Coincident", 1, 2, 2, 1))
sketch9.addConstraint(Sketcher.Constraint("Coincident", 2, 2, 3, 1))
sketch9.addConstraint(Sketcher.Constraint("Coincident", 3, 2, 4, 1))
sketch9.addConstraint(Sketcher.Constraint("Coincident", 4, 2, 5, 1))
sketch9.addConstraint(Sketcher.Constraint("Coincident", 5, 2, 6, 1))
sketch9.addConstraint(Sketcher.Constraint("Coincident", 6, 2, 0, 1))
sketch9.addConstraint(Sketcher.Constraint("Vertical", 0))
sketch9.addConstraint(Sketcher.Constraint("Horizontal", 1))
sketch9.addConstraint(Sketcher.Constraint("Vertical", 3))
sketch9.addConstraint(Sketcher.Constraint("Horizontal", 4))
sketch9.addConstraint(Sketcher.Constraint("Vertical", 5))
sketch9.addConstraint(Sketcher.Constraint("Vertical", 7))
sketch9.addConstraint(Sketcher.Constraint("Coincident", 7, 1, 0, 2))
sketch9.addConstraint(Sketcher.Constraint("Equal", 0, 7))
sketch9.addConstraint(Sketcher.Constraint("DistanceY", 0, 2, -1, 1, Q("2 in")))
sketch9.addConstraint(Sketcher.Constraint("Angle", 2, Q("135 deg")))
sketch9.addConstraint(Sketcher.Constraint("Angle", 6, Q("149 deg")))
sketch9.addConstraint(Sketcher.Constraint("DistanceY", 3, 1, 3, 2, Q("0.47 in")))
sketch9.addConstraint(Sketcher.Constraint("DistanceY", 5, 1, 5, 2, Q("0.25 in")))
sketch9.addConstraint(Sketcher.Constraint("DistanceX", -1, 1, 0, 2, Q("1.5 in")))
sketch9.addConstraint(Sketcher.Constraint("DistanceY", 3, 2, -1, 1, Q("1.5 in")))
sketch9.addConstraint(Sketcher.Constraint("DistanceX", 1, 1, 1, 2, Q("0.155 in")))
sketch9.addConstraint(Sketcher.Constraint("DistanceX", 4, 2, 4, 1, Q("0.0245 in")))
groove4 = body.newObject("PartDesign::Groove", "Groove003")
groove4.Profile = sketch9
groove4.ReferenceAxis = (sketch9, ["Axis0"])
groove4.Angle = 360
doc.recompute()

linearpattern13 = body.newObject("PartDesign::LinearPattern", "LinearPattern012")
linearpattern13.Originals = [groove4]
linearpattern13.Direction = (doc.getObject("X_Axis"), [""])
linearpattern13.Mode = "offset"
linearpattern13.Offset = Q("2 in")
linearpattern13.Occurrences = 2
linearpattern13.Reversed = True
body.Tip = linearpattern13

doc.recompute()
